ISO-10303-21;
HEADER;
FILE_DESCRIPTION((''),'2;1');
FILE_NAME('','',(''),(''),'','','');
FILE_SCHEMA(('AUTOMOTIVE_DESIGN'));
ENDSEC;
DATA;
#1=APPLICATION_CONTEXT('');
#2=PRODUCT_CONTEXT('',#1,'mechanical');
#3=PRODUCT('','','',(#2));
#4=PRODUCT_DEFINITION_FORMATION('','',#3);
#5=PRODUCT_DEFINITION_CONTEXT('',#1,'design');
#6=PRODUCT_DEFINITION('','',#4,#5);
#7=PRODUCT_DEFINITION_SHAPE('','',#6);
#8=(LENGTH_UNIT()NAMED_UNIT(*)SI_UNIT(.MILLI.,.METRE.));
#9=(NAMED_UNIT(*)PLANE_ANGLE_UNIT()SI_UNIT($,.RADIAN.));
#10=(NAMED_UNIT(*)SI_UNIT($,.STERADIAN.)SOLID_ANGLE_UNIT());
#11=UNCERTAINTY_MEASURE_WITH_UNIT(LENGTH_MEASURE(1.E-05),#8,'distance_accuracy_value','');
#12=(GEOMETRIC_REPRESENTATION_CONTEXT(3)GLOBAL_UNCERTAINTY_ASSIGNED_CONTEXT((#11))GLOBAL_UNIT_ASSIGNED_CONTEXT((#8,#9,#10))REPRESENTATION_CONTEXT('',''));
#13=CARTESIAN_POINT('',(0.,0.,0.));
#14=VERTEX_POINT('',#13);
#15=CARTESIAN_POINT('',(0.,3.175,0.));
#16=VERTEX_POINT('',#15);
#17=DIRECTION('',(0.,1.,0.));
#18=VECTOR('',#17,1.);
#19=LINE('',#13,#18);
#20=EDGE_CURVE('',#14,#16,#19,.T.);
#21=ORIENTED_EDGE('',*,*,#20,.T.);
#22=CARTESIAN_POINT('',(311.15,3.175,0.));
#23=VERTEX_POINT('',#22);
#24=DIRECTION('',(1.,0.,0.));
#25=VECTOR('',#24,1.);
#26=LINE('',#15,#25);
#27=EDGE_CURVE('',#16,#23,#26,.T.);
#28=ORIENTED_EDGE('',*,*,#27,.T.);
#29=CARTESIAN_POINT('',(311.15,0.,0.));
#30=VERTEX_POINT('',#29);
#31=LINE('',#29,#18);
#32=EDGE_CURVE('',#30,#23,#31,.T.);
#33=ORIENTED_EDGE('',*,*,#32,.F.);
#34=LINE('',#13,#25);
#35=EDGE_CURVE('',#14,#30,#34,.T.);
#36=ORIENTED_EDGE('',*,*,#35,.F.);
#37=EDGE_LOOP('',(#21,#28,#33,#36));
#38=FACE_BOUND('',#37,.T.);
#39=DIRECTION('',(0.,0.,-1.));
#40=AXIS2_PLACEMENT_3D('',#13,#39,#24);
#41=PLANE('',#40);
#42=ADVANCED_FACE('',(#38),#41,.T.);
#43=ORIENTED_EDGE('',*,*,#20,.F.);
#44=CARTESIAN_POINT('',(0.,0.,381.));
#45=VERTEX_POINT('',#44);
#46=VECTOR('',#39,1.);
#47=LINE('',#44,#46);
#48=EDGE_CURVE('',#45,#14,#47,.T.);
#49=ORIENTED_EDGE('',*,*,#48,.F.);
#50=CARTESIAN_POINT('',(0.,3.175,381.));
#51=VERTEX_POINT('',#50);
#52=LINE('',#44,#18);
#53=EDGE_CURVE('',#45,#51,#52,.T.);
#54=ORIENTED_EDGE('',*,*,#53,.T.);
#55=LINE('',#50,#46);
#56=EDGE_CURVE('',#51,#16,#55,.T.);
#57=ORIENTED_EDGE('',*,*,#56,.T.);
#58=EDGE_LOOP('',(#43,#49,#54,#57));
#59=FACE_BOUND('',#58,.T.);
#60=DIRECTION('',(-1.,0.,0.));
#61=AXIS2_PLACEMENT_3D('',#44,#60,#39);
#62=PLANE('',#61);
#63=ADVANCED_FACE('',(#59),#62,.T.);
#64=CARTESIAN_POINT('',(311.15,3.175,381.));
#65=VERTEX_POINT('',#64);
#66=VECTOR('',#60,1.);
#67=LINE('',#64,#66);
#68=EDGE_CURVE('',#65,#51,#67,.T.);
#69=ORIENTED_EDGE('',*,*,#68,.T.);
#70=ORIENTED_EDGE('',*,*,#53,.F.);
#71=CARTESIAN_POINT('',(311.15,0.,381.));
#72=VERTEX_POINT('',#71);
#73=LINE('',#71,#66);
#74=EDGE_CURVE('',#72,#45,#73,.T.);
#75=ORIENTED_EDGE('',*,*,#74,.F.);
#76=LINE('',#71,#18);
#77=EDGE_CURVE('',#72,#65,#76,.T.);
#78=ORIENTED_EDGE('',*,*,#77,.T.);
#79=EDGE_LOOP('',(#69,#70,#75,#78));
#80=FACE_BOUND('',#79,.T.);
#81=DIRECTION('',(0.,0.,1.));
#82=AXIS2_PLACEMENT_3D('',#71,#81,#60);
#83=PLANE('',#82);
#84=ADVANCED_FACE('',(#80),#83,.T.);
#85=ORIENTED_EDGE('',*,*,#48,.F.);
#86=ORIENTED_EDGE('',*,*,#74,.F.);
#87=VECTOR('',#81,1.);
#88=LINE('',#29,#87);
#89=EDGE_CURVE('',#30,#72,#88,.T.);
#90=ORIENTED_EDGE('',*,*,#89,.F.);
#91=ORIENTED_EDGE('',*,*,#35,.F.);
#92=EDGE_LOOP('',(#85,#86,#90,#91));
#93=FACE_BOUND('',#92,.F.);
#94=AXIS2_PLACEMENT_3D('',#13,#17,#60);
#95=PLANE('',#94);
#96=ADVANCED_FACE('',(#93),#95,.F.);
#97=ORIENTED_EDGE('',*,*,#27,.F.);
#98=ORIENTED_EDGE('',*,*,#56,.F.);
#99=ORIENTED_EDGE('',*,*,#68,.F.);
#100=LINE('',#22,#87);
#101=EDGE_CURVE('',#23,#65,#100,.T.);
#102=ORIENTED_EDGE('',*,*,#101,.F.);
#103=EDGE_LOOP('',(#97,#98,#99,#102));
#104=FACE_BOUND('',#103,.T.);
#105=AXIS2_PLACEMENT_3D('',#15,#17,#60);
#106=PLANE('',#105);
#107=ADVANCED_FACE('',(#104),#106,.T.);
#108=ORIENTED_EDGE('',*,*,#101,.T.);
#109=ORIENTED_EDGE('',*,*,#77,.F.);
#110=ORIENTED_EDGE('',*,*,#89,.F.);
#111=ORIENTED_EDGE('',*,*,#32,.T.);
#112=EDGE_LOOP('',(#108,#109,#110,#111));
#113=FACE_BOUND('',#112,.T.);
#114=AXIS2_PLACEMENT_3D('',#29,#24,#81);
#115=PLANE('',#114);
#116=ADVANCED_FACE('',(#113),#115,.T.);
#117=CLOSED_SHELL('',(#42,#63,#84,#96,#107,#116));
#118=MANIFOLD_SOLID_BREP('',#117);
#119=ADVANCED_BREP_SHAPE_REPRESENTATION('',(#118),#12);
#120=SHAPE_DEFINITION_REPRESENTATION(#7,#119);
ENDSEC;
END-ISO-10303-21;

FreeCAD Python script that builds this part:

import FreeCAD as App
import Part
import Sketcher
from FreeCAD import Vector
Q = App.Units.Quantity


def add_polygon(sketch, points):
    """Adds a closed chain of lines whose ends are joined by coincident constraints."""
    first, n = sketch.GeometryCount, len(points)
    for a, b in zip(points, points[1:] + points[:1]):
        sketch.addGeometry(Part.LineSegment(App.Vector(*a, 0), App.Vector(*b, 0)), False)
    for i in range(n):
        sketch.addConstraint(Sketcher.Constraint("Coincident", first + i, 2, first + (i + 1) % n, 1))

doc = App.newDocument("Part")
body = doc.addObject("PartDesign::Body", "Body")

# Sketch on XZ plane
sketch1 = body.newObject("Sketcher::SketchObject", "Sketch")
sketch1.AttachmentSupport = (doc.getObject("XZ_Plane"), [""])
sketch1.MapMode = "FlatFace"
add_polygon(sketch1, [(311.15, 0), (0, 0), (0, 381), (311.15, 381)])  # lines 0-3
sketch1.addConstraint([
    Sketcher.Constraint("Horizontal", 0),
    Sketcher.Constraint("Vertical", 1),
    Sketcher.Constraint("Horizontal", 2),
    Sketcher.Constraint("Vertical", 3),
    Sketcher.Constraint("Coincident", 0, 2, -1, 1),
    Sketcher.Constraint("DistanceY", 1, 1, 1, 2, Q("15 in")),
    Sketcher.Constraint("DistanceX", 0, 2, 0, 1, Q("12.25 in")),
])
pad1 = body.newObject("PartDesign::Pad", "Pad")
pad1.Profile = sketch1
pad1.Length = Q("0.125 in")
pad1.Reversed = True

doc.recompute()
